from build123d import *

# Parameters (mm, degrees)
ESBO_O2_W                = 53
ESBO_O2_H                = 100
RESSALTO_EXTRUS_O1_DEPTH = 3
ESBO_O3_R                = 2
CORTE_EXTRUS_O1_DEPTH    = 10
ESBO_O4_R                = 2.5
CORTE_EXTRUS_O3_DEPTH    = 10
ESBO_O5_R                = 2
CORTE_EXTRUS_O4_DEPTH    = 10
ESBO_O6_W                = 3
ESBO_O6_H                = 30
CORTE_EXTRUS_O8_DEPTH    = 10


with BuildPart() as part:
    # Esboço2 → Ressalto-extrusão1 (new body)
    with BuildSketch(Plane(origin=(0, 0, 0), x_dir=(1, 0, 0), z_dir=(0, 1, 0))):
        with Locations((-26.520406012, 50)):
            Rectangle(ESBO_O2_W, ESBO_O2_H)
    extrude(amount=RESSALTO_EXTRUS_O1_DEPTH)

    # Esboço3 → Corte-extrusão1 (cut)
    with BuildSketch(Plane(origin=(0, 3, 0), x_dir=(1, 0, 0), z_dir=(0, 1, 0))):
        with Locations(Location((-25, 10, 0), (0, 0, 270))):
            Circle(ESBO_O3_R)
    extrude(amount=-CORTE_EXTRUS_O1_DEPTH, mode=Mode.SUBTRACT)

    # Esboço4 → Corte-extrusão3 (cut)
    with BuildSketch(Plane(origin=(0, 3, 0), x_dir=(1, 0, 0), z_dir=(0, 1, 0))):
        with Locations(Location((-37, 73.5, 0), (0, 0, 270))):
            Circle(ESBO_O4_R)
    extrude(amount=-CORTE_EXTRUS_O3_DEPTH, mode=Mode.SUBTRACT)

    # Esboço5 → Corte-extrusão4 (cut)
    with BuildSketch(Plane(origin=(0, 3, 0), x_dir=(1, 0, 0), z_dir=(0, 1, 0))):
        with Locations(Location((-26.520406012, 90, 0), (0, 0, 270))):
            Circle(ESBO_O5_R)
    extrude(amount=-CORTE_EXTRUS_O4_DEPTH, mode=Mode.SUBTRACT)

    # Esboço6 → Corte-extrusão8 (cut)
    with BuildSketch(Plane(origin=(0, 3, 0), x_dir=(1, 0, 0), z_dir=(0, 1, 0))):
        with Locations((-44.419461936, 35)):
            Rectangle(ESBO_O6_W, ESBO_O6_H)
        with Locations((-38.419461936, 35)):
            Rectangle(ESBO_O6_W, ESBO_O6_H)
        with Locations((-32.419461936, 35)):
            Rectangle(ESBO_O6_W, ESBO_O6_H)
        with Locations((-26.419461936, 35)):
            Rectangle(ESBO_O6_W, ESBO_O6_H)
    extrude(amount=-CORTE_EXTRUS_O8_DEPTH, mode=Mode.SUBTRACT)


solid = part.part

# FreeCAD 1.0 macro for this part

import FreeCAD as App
import Part
import Sketcher
Q = App.Units.Quantity

doc = App.newDocument("Part")
body = doc.addObject("PartDesign::Body", "Body")

# Sketch on XZ plane
sketch1 = body.newObject("Sketcher::SketchObject", "Sketch")
sketch1.AttachmentSupport = (doc.getObject("XZ_Plane"), [""])
sketch1.MapMode = "FlatFace"
sketch1.addGeometry([
    Part.LineSegment(App.Vector(-53, -100, 0), App.Vector(-53, 0, 0)),
    Part.LineSegment(App.Vector(-53, 0, 0), App.Vector(0, 0, 0)),
    Part.LineSegment(App.Vector(0, 0, 0), App.Vector(0, -100, 0)),
    Part.LineSegment(App.Vector(0, -100, 0), App.Vector(-53, -100, 0)),
], False)
sketch1.addConstraint([
    Sketcher.Constraint("Coincident", 0, 2, 1, 1),
    Sketcher.Constraint("Coincident", 1, 2, 2, 1),
    Sketcher.Constraint("Coincident", 2, 2, 3, 1),
    Sketcher.Constraint("Coincident", 3, 2, 0, 1),
    Sketcher.Constraint("Vertical", 0),
    Sketcher.Constraint("Horizontal", 1),
    Sketcher.Constraint("Vertical", 2),
    Sketcher.Constraint("Horizontal", 3),
    Sketcher.Constraint("PointOnObject", 0, 2, -1),
    Sketcher.Constraint("DistanceX", 1, 1, 1, 2, Q("53 mm")),
    Sketcher.Constraint("DistanceY", 0, 1, 0, 2, Q("100 mm")),
    Sketcher.Constraint("DistanceX", 0, 2, -1, 1, Q("53.020406 mm")),
])
pad1 = body.newObject("PartDesign::Pad", "Pad")
pad1.Profile = sketch1
pad1.Length = 3
pad1.Reversed = True

# Sketch on XZ plane
sketch2 = body.newObject("Sketcher::SketchObject", "Sketch001")
sketch2.AttachmentSupport = (doc.getObject("XZ_Plane"), [""])
sketch2.MapMode = "FlatFace"
sketch2.AttachmentOffset = App.Placement(App.Vector(0, 0, -3), App.Rotation())
sketch2.addGeometry(Part.Circle(App.Vector(-25, -10, 0), App.Vector(0, 0, 1), 2), False)
sketch2.addConstraint([
    Sketcher.Constraint("Diameter", 0, Q("4 mm")),
    Sketcher.Constraint("DistanceX", 0, 3, -1, 1, Q("25 mm")),
    Sketcher.Constraint("DistanceY", 0, 3, -1, 1, Q("10 mm")),
])
pocket1 = body.newObject("PartDesign::Pocket", "Pocket")
pocket1.Profile = sketch2
pocket1.Length = 10
pocket1.Reversed = True

# Sketch on XZ plane
sketch3 = body.newObject("Sketcher::SketchObject", "Sketch002")
sketch3.AttachmentSupport = (doc.getObject("XZ_Plane"), [""])
sketch3.MapMode = "FlatFace"
sketch3.AttachmentOffset = App.Placement(App.Vector(0, 0, -3), App.Rotation())
sketch3.addGeometry(Part.Circle(App.Vector(-37, -73.5, 0), App.Vector(0, 0, 1), 2.5), False)
sketch3.addConstraint([
    Sketcher.Constraint("Diameter", 0, Q("5 mm")),
    Sketcher.Constraint("DistanceX", 0, 3, -1, 1, Q("37 mm")),
    Sketcher.Constraint("DistanceY", 0, 3, -1, 1, Q("73.5 mm")),
])
pocket2 = body.newObject("PartDesign::Pocket", "Pocket001")
pocket2.Profile = sketch3
pocket2.Length = 10
pocket2.Reversed = True

# Sketch on XZ plane
sketch4 = body.newObject("Sketcher::SketchObject", "Sketch003")
sketch4.AttachmentSupport = (doc.getObject("XZ_Plane"), [""])
sketch4.MapMode = "FlatFace"
sketch4.AttachmentOffset = App.Placement(App.Vector(0, 0, -3), App.Rotation())
sketch4.addGeometry(Part.Circle(App.Vector(-26.5, -90, 0), App.Vector(0, 0, 1), 2), False)
sketch4.addConstraint([
    Sketcher.Constraint("Diameter", 0, Q("4 mm")),
    Sketcher.Constraint("DistanceY", 0, 3, -1, 1, Q("90 mm")),
    Sketcher.Constraint("DistanceX", 0, 3, -1, 1, Q("26.520406 mm")),
])
pocket3 = body.newObject("PartDesign::Pocket", "Pocket002")
pocket3.Profile = sketch4
pocket3.Length = 10
pocket3.Reversed = True

# Sketch on XZ plane
sketch5 = body.newObject("Sketcher::SketchObject", "Sketch004")
sketch5.AttachmentSupport = (doc.getObject("XZ_Plane"), [""])
sketch5.MapMode = "FlatFace"
sketch5.AttachmentOffset = App.Placement(App.Vector(0, 0, -3), App.Rotation())
sketch5.addGeometry([
    Part.LineSegment(App.Vector(-45.9, -50, 0), App.Vector(-45.9, -20, 0)),  # 0
    Part.LineSegment(App.Vector(-45.9, -20, 0), App.Vector(-42.9, -20, 0)),  # 1
    Part.LineSegment(App.Vector(-42.9, -20, 0), App.Vector(-42.9, -50, 0)),  # 2
    Part.LineSegment(App.Vector(-42.9, -50, 0), App.Vector(-45.9, -50, 0)),  # 3
    Part.LineSegment(App.Vector(-39.9, -50, 0), App.Vector(-39.9, -20, 0)),  # 4
    Part.LineSegment(App.Vector(-39.9, -20, 0), App.Vector(-36.9, -20, 0)),  # 5
    Part.LineSegment(App.Vector(-36.9, -20, 0), App.Vector(-36.9, -50, 0)),  # 6
    Part.LineSegment(App.Vector(-36.9, -50, 0), App.Vector(-39.9, -50, 0)),  # 7
    Part.LineSegment(App.Vector(-33.9, -50, 0), App.Vector(-33.9, -20, 0)),  # 8
    Part.LineSegment(App.Vector(-33.9, -20, 0), App.Vector(-30.9, -20, 0)),  # 9
    Part.LineSegment(App.Vector(-30.9, -20, 0), App.Vector(-30.9, -50, 0)),  # 10
    Part.LineSegment(App.Vector(-30.9, -50, 0), App.Vector(-33.9, -50, 0)),  # 11
    Part.LineSegment(App.Vector(-27.9, -50, 0), App.Vector(-27.9, -20, 0)),  # 12
    Part.LineSegment(App.Vector(-27.9, -20, 0), App.Vector(-24.9, -20, 0)),  # 13
    Part.LineSegment(App.Vector(-24.9, -20, 0), App.Vector(-24.9, -50, 0)),  # 14
    Part.LineSegment(App.Vector(-24.9, -50, 0), App.Vector(-27.9, -50, 0)),  # 15
], False)
sketch5.addConstraint([
    Sketcher.Constraint("Coincident", 0, 2, 1, 1),
    Sketcher.Constraint("Coincident", 1, 2, 2, 1),
    Sketcher.Constraint("Coincident", 2, 2, 3, 1),
    Sketcher.Constraint("Coincident", 3, 2, 0, 1),
    Sketcher.Constraint("Coincident", 4, 2, 5, 1),
    Sketcher.Constraint("Coincident", 5, 2, 6, 1),
    Sketcher.Constraint("Coincident", 6, 2, 7, 1),
    Sketcher.Constraint("Coincident", 7, 2, 4, 1),
    Sketcher.Constraint("Coincident", 8, 2, 9, 1),
    Sketcher.Constraint("Coincident", 9, 2, 10, 1),
    Sketcher.Constraint("Coincident", 10, 2, 11, 1),
    Sketcher.Constraint("Coincident", 11, 2, 8, 1),
    Sketcher.Constraint("Coincident", 12, 2, 13, 1),
    Sketcher.Constraint("Coincident", 13, 2, 14, 1),
    Sketcher.Constraint("Coincident", 14, 2, 15, 1),
    Sketcher.Constraint("Coincident", 15, 2, 12, 1),
    Sketcher.Constraint("Vertical", 0),
    Sketcher.Constraint("Horizontal", 1),
    Sketcher.Constraint("Vertical", 2),
    Sketcher.Constraint("Horizontal", 3),
    Sketcher.Constraint("Vertical", 4),
    Sketcher.Constraint("Horizontal", 5),
    Sketcher.Constraint("Vertical", 6),
    Sketcher.Constraint("Horizontal", 7),
    Sketcher.Constraint("Vertical", 8),
    Sketcher.Constraint("Horizontal", 9),
    Sketcher.Constraint("Vertical", 10),
    Sketcher.Constraint("Horizontal", 11),
    Sketcher.Constraint("Vertical", 12),
    Sketcher.Constraint("Horizontal", 13),
    Sketcher.Constraint("Vertical", 14),
    Sketcher.Constraint("Horizontal", 15),
    Sketcher.Constraint("Horizontal", 1, 2, 4, 2),
    Sketcher.Constraint("Horizontal", 3, 2, 6, 2),
    Sketcher.Constraint("Horizontal", 5, 2, 8, 2),
    Sketcher.Constraint("Horizontal", 7, 2, 10, 2),
    Sketcher.Constraint("Horizontal", 9, 2, 12, 2),
    Sketcher.Constraint("Horizontal", 11, 2, 14, 2),
    Sketcher.Constraint("Equal", 3, 5),
    Sketcher.Constraint("Equal", 7, 9),
    Sketcher.Constraint("Equal", 11, 13),
    Sketcher.Constraint("DistanceX", 1, 1, 1, 2, Q("3 mm")),
    Sketcher.Constraint("DistanceY", 0, 1, 0, 2, Q("30 mm")),
    Sketcher.Constraint("DistanceY", 0, 2, -1, 1, Q("20 mm")),
    Sketcher.Constraint("DistanceX", 1, 2, 4, 2, Q("3 mm")),
    Sketcher.Constraint("DistanceX", 5, 2, 8, 2, Q("3 mm")),
    Sketcher.Constraint("DistanceX", 9, 2, 12, 2, Q("3 mm")),
    Sketcher.Constraint("DistanceX", 0, 2, -1, 1, Q("45.919462 mm")),
])
pocket4 = body.newObject("PartDesign::Pocket", "Pocket003")
pocket4.Profile = sketch5
pocket4.Length = 10
pocket4.Reversed = True

doc.recompute()
